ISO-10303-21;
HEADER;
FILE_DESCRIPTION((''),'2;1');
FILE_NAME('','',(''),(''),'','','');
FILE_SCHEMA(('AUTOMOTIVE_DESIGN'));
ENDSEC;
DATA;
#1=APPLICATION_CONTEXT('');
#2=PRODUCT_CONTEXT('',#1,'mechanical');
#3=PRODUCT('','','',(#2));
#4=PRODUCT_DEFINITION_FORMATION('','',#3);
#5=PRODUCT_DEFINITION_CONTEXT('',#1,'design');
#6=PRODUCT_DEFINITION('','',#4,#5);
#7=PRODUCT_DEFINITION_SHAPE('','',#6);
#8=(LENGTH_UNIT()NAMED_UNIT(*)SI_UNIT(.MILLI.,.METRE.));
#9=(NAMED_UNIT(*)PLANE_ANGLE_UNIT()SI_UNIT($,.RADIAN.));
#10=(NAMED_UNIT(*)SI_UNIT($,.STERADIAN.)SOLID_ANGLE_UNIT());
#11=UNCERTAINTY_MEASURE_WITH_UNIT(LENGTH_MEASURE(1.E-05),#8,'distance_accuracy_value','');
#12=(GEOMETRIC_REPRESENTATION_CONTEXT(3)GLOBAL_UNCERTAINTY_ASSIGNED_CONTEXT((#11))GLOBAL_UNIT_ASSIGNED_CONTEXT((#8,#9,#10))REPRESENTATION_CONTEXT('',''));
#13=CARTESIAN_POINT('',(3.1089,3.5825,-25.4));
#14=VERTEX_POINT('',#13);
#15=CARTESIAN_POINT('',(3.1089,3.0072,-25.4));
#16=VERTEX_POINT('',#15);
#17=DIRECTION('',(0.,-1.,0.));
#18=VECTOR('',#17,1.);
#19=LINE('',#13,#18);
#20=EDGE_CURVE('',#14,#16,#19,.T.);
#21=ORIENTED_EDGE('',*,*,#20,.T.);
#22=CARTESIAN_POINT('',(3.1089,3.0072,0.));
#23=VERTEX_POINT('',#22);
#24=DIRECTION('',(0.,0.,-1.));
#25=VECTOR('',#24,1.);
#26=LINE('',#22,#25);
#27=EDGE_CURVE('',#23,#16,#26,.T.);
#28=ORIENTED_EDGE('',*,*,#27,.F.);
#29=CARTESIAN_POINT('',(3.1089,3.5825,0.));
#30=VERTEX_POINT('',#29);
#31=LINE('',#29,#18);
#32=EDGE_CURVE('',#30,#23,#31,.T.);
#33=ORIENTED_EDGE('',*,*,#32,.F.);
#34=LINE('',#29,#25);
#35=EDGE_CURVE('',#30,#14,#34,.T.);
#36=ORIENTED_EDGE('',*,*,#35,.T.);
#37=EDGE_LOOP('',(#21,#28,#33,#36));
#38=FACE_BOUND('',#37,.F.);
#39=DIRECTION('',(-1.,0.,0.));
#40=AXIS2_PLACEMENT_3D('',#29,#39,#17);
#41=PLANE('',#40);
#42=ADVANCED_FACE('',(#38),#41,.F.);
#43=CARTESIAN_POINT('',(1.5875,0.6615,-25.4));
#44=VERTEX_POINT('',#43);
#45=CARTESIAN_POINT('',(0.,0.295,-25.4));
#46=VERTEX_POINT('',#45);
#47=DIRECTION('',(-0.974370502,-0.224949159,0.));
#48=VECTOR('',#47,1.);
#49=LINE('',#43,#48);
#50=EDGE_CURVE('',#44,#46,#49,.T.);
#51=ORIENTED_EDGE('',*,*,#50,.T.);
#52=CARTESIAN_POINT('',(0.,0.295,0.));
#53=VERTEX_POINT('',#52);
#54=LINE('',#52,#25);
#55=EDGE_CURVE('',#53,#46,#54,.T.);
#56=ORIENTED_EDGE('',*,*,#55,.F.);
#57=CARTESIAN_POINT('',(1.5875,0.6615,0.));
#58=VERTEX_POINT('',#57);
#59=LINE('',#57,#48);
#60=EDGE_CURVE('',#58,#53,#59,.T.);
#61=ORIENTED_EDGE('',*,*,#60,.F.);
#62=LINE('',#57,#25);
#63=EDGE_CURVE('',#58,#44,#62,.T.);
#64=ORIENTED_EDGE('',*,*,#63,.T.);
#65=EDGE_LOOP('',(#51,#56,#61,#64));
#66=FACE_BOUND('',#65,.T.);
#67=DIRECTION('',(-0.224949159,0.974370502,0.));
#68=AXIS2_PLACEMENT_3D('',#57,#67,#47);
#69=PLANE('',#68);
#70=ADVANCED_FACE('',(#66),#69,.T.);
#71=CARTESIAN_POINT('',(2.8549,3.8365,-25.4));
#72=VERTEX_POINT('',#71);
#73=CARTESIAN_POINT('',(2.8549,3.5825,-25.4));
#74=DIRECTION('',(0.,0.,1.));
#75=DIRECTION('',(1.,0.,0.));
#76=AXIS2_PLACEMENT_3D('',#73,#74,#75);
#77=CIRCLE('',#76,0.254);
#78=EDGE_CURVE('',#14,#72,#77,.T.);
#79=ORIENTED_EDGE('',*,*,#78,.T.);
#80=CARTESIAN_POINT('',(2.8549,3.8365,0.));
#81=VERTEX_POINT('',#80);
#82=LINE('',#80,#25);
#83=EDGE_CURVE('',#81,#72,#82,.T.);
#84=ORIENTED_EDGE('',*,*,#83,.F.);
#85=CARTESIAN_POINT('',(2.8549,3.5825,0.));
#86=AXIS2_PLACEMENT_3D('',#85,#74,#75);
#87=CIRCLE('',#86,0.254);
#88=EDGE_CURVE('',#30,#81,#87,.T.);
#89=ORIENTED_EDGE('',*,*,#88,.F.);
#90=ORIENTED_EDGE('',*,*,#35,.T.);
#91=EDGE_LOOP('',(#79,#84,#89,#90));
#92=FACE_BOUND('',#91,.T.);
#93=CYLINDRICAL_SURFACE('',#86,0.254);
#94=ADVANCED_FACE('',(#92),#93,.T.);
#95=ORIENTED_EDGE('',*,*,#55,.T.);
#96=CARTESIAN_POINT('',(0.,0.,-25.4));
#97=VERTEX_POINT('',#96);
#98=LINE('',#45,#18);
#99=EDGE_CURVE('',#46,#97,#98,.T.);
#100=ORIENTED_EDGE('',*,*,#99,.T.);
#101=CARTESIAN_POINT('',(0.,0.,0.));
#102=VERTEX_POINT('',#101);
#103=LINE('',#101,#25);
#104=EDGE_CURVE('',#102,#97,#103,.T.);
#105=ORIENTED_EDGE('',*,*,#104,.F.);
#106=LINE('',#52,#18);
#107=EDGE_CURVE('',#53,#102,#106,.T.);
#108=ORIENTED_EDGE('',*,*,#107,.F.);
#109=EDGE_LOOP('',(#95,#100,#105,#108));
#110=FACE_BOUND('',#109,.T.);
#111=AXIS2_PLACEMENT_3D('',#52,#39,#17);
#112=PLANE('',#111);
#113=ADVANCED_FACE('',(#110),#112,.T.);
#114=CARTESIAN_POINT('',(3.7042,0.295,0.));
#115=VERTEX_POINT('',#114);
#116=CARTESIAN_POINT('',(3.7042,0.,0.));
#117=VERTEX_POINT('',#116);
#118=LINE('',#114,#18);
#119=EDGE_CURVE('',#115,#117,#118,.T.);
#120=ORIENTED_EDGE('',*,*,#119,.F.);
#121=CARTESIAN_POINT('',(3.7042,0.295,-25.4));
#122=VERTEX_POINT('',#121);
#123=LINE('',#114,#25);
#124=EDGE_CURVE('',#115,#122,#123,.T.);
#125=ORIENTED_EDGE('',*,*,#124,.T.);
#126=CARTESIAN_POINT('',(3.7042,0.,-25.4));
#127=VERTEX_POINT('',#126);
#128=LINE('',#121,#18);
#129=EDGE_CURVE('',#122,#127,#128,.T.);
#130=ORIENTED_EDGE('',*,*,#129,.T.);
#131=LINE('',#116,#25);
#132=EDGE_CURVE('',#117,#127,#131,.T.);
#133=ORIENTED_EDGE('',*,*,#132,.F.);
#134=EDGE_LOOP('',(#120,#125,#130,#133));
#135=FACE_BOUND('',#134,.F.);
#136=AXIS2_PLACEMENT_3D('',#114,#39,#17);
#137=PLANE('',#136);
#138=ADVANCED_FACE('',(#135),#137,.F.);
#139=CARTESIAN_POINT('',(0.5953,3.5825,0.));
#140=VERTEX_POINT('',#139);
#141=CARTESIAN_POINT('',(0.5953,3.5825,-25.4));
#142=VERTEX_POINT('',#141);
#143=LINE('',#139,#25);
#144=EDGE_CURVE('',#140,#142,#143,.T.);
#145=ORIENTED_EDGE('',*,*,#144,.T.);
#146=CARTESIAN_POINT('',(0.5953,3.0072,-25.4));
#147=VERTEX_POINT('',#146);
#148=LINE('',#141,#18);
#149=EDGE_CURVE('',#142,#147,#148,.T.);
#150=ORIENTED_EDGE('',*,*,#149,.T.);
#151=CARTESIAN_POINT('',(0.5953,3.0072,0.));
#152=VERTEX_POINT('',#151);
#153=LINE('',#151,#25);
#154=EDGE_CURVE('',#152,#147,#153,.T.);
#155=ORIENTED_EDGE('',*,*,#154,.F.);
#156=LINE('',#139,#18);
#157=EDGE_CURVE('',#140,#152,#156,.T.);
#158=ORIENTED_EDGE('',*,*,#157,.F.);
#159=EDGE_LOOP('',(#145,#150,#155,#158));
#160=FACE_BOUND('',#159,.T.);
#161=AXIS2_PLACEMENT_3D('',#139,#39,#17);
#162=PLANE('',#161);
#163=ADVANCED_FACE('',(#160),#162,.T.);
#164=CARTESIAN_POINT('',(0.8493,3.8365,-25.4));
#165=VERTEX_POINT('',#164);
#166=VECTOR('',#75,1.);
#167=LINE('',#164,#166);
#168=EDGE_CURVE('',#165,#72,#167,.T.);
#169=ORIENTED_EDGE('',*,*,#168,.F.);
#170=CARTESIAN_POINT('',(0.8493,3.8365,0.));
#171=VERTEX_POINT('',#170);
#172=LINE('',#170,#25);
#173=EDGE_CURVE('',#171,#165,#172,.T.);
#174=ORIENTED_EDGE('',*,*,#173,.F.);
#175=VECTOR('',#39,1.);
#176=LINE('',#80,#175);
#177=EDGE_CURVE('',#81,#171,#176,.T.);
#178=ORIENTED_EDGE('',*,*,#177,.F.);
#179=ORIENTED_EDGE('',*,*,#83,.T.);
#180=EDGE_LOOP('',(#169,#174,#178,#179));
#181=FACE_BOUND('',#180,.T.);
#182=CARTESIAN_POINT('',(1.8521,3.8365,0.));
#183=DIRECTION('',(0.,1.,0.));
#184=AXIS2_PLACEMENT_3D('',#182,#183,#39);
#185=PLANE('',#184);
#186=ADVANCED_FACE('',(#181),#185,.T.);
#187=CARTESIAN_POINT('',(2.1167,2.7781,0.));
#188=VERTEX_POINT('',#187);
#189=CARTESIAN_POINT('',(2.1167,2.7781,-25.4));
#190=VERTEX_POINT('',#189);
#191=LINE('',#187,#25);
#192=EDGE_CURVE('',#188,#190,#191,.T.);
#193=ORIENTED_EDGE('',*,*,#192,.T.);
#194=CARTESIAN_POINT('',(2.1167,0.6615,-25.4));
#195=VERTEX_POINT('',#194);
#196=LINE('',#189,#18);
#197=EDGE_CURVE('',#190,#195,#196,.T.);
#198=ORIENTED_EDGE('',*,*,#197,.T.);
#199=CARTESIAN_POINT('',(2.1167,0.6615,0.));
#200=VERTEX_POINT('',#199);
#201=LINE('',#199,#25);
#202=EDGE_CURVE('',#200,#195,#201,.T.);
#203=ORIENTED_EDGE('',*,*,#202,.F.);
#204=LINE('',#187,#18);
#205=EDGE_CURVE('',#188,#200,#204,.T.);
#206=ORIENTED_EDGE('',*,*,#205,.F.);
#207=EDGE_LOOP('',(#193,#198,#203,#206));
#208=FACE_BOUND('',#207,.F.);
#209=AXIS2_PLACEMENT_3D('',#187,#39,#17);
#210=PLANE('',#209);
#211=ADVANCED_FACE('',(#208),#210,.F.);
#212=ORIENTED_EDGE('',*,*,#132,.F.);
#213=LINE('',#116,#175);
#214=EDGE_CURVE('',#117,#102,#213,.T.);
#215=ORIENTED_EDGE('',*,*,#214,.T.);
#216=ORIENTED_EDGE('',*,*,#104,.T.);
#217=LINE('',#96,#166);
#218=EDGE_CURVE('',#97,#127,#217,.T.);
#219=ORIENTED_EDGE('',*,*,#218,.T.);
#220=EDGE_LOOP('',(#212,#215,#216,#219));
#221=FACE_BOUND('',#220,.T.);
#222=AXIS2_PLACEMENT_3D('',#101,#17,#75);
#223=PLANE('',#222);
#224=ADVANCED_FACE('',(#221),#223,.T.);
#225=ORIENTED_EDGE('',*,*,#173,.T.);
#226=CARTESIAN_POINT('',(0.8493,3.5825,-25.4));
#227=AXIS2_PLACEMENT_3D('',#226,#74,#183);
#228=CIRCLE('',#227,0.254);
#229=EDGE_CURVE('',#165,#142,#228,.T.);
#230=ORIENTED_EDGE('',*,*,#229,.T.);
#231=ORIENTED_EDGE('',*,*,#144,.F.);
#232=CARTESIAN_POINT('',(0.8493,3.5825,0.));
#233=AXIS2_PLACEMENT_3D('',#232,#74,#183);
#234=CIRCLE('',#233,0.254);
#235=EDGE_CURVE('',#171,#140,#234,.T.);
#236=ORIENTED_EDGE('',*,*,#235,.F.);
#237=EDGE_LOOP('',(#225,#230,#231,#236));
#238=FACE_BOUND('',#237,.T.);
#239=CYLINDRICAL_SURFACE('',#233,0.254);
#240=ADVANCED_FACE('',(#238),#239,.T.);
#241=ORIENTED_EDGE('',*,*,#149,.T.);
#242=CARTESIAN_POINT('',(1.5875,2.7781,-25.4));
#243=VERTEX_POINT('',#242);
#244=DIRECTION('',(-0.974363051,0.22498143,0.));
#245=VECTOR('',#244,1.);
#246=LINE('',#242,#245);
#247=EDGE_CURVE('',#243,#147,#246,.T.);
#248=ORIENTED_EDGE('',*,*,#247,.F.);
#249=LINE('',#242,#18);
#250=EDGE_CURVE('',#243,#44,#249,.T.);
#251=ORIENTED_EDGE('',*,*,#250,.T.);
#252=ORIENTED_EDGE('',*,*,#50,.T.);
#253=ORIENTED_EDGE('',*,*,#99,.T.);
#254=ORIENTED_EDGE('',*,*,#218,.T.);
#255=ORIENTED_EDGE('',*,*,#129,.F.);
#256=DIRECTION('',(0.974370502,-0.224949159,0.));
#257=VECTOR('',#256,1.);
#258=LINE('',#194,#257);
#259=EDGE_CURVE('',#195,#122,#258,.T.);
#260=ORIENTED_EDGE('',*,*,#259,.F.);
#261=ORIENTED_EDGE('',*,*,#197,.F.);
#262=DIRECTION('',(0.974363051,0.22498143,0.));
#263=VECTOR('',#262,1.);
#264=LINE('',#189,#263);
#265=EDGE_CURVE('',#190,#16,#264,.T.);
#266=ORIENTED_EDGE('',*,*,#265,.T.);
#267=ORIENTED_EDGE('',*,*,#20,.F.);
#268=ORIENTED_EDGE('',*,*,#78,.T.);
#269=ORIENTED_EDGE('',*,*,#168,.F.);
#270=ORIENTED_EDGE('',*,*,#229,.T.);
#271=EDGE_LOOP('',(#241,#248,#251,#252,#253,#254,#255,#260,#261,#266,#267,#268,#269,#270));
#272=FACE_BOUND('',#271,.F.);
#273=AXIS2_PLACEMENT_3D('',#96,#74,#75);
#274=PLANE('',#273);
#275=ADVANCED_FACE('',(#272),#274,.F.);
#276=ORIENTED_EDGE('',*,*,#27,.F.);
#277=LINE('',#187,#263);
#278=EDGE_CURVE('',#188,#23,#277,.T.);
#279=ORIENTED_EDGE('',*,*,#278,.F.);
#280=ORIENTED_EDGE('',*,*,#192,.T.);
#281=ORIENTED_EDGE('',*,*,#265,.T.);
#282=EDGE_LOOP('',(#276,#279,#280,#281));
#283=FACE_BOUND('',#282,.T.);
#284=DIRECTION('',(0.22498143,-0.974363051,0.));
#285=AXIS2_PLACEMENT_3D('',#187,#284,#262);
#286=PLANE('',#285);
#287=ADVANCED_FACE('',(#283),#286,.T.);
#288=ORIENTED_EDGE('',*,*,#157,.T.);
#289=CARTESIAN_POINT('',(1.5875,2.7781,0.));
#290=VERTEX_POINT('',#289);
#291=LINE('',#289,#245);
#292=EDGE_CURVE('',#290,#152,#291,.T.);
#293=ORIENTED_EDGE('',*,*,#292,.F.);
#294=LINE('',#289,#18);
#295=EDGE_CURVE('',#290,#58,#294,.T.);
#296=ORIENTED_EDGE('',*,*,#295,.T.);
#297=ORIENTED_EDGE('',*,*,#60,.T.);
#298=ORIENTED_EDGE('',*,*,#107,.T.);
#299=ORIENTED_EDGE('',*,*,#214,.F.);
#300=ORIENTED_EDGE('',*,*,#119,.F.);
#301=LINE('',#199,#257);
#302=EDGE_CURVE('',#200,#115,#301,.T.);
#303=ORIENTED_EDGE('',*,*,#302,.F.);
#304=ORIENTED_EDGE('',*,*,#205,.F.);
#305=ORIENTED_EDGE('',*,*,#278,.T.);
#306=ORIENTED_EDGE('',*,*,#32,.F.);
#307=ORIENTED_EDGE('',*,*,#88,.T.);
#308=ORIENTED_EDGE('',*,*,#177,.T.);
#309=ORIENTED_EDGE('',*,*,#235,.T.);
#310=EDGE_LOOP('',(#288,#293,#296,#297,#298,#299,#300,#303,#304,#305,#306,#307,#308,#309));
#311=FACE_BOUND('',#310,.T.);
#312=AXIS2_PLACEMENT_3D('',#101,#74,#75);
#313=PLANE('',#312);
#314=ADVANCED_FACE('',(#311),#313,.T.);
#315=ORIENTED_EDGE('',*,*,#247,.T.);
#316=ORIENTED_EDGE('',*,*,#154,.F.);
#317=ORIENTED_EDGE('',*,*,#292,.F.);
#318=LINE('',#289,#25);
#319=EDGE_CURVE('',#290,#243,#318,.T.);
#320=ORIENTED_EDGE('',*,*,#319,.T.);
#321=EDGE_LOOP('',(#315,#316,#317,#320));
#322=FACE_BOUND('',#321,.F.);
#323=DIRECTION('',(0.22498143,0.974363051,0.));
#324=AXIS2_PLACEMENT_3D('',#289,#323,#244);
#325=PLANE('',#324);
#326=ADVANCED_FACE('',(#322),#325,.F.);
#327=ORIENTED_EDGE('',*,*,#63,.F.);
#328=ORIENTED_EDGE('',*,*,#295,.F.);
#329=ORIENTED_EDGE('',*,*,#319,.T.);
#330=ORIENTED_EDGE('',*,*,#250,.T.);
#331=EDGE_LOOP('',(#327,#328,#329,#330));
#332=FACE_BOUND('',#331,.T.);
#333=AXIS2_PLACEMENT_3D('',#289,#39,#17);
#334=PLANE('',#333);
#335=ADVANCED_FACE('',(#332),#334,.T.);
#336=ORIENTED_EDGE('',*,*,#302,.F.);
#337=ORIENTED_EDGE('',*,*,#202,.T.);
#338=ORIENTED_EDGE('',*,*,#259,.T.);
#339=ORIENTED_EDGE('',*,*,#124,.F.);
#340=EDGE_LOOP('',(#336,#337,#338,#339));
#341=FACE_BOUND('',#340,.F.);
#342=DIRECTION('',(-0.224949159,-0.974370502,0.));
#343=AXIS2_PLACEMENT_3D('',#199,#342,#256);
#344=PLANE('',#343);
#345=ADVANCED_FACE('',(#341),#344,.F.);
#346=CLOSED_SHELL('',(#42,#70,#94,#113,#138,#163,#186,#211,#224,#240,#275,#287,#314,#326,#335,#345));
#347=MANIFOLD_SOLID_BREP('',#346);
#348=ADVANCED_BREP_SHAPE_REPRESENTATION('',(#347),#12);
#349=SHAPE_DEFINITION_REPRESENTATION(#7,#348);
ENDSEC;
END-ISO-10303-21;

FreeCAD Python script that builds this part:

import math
import FreeCAD as App
import Part
import Sketcher
from FreeCAD import Vector
Q = App.Units.Quantity

doc = App.newDocument("Part")
params = doc.addObject("Spreadsheet::Sheet", "Params")
for row, (alias, value) in enumerate([
    ("sketch1_radius", "0.01 in"),
    ("pad1_length", "1 in"),
], start=1):
    params.set(f"A{row}", alias)
    params.set(f"B{row}", "=" + value)
    params.setAlias(f"B{row}", alias)

body = doc.addObject("PartDesign::Body", "Body")

sketch1 = body.newObject("Sketcher::SketchObject", "Sketch")
sketch1.AttachmentSupport = (doc.getObject("XY_Plane"), [""])
sketch1.MapMode = "FlatFace"
sketch1.addGeometry([
    Part.LineSegment(Vector(0, 0.29, 0), Vector(0, 0, 0)),
    Part.LineSegment(Vector(0, 0, 0), Vector(3.7, 0, 0)),
    Part.LineSegment(Vector(3.7, 0, 0), Vector(3.7, 0.29, 0)),
    Part.LineSegment(Vector(3.7, 0.29, 0), Vector(2.12, 0.66, 0)),
    Part.LineSegment(Vector(2.12, 0.66, 0), Vector(2.12, 2.78, 0)),
    Part.LineSegment(Vector(2.12, 2.78, 0), Vector(3.11, 3.01, 0)),
    Part.LineSegment(Vector(3.11, 3.01, 0), Vector(3.11, 3.58, 0)),
    Part.ArcOfCircle(Part.Circle(Vector(2.85, 3.58, 0), Vector(0, 0, 1), 0.25), math.radians(0), math.radians(90)),
    Part.LineSegment(Vector(2.85, 3.84, 0), Vector(0.85, 3.84, 0)),
    Part.ArcOfCircle(Part.Circle(Vector(0.85, 3.58, 0), Vector(0, 0, 1), 0.25), math.radians(90), math.radians(180)),
    Part.LineSegment(Vector(0.6, 3.58, 0), Vector(0.6, 3.01, 0)),
    Part.LineSegment(Vector(0.6, 3.01, 0), Vector(1.59, 2.78, 0)),
    Part.LineSegment(Vector(1.59, 2.78, 0), Vector(1.59, 0.66, 0)),
    Part.LineSegment(Vector(1.59, 0.66, 0), Vector(0, 0.29, 0)),
], False)
sketch1.addConstraint([
    Sketcher.Constraint("Coincident", 0, 2, 1, 1),
    Sketcher.Constraint("Coincident", 1, 2, 2, 1),
    Sketcher.Constraint("Coincident", 2, 2, 3, 1),
    Sketcher.Constraint("Coincident", 3, 2, 4, 1),
    Sketcher.Constraint("Coincident", 4, 2, 5, 1),
    Sketcher.Constraint("Coincident", 5, 2, 6, 1),
    Sketcher.Constraint("Tangent", 6, 2, 7, 1),
    Sketcher.Constraint("Tangent", 7, 2, 8, 1),
    Sketcher.Constraint("Tangent", 8, 2, 9, 1),
    Sketcher.Constraint("Tangent", 9, 2, 10, 1),
    Sketcher.Constraint("Coincident", 10, 2, 11, 1),
    Sketcher.Constraint("Coincident", 11, 2, 12, 1),
    Sketcher.Constraint("Coincident", 12, 2, 13, 1),
    Sketcher.Constraint("Coincident", 13, 2, 0, 1),
    Sketcher.Constraint("Vertical", 0),
    Sketcher.Constraint("Horizontal", 1),
    Sketcher.Constraint("Vertical", 2),
    Sketcher.Constraint("Vertical", 4),
    Sketcher.Constraint("Vertical", 6),
    Sketcher.Constraint("Horizontal", 8),
    Sketcher.Constraint("Vertical", 10),
    Sketcher.Constraint("Vertical", 12),
    Sketcher.Constraint("Coincident", 0, 2, -1, 1),
    Sketcher.Constraint("Equal", 7, 9),
    Sketcher.Constraint("Parallel", 3, 11),
    Sketcher.Constraint("Parallel", 5, 13),
    Sketcher.Constraint("Horizontal", 5, 2, 10, 2),
    Sketcher.Constraint("Horizontal", 4, 2, 11, 2),
    Sketcher.Constraint("Horizontal", 3, 2, 12, 2),
    Sketcher.Constraint("Horizontal", 2, 2, 13, 2),
    Sketcher.Constraint("Equal", 5, 11),
    Sketcher.Constraint("Radius", 7, Q("0.01 in")),
    Sketcher.Constraint("Angle", 3, Q("167 deg")),
    Sketcher.Constraint("DistanceY", 4, 1, 4, 2, 2.1166),
    Sketcher.Constraint("DistanceX", -1, 1, 3, 2, 2.1167),
    Sketcher.Constraint("DistanceY", -1, 1, 3, 2, 0.6615),
    Sketcher.Constraint("DistanceY", 4, 2, 7, 2, 1.0584),
    Sketcher.Constraint("DistanceX", -1, 1, 11, 2, Q("0.0625 in")),
    Sketcher.Constraint("Distance", 5, Q("0.0401 in")),
])
sketch1.setExpression("Constraints[31]", "Params.sketch1_radius")
pad1 = body.newObject("PartDesign::Pad", "Pad")
pad1.Profile = sketch1
pad1.setExpression("Length", "Params.pad1_length")
pad1.Reversed = True

doc.recompute()
